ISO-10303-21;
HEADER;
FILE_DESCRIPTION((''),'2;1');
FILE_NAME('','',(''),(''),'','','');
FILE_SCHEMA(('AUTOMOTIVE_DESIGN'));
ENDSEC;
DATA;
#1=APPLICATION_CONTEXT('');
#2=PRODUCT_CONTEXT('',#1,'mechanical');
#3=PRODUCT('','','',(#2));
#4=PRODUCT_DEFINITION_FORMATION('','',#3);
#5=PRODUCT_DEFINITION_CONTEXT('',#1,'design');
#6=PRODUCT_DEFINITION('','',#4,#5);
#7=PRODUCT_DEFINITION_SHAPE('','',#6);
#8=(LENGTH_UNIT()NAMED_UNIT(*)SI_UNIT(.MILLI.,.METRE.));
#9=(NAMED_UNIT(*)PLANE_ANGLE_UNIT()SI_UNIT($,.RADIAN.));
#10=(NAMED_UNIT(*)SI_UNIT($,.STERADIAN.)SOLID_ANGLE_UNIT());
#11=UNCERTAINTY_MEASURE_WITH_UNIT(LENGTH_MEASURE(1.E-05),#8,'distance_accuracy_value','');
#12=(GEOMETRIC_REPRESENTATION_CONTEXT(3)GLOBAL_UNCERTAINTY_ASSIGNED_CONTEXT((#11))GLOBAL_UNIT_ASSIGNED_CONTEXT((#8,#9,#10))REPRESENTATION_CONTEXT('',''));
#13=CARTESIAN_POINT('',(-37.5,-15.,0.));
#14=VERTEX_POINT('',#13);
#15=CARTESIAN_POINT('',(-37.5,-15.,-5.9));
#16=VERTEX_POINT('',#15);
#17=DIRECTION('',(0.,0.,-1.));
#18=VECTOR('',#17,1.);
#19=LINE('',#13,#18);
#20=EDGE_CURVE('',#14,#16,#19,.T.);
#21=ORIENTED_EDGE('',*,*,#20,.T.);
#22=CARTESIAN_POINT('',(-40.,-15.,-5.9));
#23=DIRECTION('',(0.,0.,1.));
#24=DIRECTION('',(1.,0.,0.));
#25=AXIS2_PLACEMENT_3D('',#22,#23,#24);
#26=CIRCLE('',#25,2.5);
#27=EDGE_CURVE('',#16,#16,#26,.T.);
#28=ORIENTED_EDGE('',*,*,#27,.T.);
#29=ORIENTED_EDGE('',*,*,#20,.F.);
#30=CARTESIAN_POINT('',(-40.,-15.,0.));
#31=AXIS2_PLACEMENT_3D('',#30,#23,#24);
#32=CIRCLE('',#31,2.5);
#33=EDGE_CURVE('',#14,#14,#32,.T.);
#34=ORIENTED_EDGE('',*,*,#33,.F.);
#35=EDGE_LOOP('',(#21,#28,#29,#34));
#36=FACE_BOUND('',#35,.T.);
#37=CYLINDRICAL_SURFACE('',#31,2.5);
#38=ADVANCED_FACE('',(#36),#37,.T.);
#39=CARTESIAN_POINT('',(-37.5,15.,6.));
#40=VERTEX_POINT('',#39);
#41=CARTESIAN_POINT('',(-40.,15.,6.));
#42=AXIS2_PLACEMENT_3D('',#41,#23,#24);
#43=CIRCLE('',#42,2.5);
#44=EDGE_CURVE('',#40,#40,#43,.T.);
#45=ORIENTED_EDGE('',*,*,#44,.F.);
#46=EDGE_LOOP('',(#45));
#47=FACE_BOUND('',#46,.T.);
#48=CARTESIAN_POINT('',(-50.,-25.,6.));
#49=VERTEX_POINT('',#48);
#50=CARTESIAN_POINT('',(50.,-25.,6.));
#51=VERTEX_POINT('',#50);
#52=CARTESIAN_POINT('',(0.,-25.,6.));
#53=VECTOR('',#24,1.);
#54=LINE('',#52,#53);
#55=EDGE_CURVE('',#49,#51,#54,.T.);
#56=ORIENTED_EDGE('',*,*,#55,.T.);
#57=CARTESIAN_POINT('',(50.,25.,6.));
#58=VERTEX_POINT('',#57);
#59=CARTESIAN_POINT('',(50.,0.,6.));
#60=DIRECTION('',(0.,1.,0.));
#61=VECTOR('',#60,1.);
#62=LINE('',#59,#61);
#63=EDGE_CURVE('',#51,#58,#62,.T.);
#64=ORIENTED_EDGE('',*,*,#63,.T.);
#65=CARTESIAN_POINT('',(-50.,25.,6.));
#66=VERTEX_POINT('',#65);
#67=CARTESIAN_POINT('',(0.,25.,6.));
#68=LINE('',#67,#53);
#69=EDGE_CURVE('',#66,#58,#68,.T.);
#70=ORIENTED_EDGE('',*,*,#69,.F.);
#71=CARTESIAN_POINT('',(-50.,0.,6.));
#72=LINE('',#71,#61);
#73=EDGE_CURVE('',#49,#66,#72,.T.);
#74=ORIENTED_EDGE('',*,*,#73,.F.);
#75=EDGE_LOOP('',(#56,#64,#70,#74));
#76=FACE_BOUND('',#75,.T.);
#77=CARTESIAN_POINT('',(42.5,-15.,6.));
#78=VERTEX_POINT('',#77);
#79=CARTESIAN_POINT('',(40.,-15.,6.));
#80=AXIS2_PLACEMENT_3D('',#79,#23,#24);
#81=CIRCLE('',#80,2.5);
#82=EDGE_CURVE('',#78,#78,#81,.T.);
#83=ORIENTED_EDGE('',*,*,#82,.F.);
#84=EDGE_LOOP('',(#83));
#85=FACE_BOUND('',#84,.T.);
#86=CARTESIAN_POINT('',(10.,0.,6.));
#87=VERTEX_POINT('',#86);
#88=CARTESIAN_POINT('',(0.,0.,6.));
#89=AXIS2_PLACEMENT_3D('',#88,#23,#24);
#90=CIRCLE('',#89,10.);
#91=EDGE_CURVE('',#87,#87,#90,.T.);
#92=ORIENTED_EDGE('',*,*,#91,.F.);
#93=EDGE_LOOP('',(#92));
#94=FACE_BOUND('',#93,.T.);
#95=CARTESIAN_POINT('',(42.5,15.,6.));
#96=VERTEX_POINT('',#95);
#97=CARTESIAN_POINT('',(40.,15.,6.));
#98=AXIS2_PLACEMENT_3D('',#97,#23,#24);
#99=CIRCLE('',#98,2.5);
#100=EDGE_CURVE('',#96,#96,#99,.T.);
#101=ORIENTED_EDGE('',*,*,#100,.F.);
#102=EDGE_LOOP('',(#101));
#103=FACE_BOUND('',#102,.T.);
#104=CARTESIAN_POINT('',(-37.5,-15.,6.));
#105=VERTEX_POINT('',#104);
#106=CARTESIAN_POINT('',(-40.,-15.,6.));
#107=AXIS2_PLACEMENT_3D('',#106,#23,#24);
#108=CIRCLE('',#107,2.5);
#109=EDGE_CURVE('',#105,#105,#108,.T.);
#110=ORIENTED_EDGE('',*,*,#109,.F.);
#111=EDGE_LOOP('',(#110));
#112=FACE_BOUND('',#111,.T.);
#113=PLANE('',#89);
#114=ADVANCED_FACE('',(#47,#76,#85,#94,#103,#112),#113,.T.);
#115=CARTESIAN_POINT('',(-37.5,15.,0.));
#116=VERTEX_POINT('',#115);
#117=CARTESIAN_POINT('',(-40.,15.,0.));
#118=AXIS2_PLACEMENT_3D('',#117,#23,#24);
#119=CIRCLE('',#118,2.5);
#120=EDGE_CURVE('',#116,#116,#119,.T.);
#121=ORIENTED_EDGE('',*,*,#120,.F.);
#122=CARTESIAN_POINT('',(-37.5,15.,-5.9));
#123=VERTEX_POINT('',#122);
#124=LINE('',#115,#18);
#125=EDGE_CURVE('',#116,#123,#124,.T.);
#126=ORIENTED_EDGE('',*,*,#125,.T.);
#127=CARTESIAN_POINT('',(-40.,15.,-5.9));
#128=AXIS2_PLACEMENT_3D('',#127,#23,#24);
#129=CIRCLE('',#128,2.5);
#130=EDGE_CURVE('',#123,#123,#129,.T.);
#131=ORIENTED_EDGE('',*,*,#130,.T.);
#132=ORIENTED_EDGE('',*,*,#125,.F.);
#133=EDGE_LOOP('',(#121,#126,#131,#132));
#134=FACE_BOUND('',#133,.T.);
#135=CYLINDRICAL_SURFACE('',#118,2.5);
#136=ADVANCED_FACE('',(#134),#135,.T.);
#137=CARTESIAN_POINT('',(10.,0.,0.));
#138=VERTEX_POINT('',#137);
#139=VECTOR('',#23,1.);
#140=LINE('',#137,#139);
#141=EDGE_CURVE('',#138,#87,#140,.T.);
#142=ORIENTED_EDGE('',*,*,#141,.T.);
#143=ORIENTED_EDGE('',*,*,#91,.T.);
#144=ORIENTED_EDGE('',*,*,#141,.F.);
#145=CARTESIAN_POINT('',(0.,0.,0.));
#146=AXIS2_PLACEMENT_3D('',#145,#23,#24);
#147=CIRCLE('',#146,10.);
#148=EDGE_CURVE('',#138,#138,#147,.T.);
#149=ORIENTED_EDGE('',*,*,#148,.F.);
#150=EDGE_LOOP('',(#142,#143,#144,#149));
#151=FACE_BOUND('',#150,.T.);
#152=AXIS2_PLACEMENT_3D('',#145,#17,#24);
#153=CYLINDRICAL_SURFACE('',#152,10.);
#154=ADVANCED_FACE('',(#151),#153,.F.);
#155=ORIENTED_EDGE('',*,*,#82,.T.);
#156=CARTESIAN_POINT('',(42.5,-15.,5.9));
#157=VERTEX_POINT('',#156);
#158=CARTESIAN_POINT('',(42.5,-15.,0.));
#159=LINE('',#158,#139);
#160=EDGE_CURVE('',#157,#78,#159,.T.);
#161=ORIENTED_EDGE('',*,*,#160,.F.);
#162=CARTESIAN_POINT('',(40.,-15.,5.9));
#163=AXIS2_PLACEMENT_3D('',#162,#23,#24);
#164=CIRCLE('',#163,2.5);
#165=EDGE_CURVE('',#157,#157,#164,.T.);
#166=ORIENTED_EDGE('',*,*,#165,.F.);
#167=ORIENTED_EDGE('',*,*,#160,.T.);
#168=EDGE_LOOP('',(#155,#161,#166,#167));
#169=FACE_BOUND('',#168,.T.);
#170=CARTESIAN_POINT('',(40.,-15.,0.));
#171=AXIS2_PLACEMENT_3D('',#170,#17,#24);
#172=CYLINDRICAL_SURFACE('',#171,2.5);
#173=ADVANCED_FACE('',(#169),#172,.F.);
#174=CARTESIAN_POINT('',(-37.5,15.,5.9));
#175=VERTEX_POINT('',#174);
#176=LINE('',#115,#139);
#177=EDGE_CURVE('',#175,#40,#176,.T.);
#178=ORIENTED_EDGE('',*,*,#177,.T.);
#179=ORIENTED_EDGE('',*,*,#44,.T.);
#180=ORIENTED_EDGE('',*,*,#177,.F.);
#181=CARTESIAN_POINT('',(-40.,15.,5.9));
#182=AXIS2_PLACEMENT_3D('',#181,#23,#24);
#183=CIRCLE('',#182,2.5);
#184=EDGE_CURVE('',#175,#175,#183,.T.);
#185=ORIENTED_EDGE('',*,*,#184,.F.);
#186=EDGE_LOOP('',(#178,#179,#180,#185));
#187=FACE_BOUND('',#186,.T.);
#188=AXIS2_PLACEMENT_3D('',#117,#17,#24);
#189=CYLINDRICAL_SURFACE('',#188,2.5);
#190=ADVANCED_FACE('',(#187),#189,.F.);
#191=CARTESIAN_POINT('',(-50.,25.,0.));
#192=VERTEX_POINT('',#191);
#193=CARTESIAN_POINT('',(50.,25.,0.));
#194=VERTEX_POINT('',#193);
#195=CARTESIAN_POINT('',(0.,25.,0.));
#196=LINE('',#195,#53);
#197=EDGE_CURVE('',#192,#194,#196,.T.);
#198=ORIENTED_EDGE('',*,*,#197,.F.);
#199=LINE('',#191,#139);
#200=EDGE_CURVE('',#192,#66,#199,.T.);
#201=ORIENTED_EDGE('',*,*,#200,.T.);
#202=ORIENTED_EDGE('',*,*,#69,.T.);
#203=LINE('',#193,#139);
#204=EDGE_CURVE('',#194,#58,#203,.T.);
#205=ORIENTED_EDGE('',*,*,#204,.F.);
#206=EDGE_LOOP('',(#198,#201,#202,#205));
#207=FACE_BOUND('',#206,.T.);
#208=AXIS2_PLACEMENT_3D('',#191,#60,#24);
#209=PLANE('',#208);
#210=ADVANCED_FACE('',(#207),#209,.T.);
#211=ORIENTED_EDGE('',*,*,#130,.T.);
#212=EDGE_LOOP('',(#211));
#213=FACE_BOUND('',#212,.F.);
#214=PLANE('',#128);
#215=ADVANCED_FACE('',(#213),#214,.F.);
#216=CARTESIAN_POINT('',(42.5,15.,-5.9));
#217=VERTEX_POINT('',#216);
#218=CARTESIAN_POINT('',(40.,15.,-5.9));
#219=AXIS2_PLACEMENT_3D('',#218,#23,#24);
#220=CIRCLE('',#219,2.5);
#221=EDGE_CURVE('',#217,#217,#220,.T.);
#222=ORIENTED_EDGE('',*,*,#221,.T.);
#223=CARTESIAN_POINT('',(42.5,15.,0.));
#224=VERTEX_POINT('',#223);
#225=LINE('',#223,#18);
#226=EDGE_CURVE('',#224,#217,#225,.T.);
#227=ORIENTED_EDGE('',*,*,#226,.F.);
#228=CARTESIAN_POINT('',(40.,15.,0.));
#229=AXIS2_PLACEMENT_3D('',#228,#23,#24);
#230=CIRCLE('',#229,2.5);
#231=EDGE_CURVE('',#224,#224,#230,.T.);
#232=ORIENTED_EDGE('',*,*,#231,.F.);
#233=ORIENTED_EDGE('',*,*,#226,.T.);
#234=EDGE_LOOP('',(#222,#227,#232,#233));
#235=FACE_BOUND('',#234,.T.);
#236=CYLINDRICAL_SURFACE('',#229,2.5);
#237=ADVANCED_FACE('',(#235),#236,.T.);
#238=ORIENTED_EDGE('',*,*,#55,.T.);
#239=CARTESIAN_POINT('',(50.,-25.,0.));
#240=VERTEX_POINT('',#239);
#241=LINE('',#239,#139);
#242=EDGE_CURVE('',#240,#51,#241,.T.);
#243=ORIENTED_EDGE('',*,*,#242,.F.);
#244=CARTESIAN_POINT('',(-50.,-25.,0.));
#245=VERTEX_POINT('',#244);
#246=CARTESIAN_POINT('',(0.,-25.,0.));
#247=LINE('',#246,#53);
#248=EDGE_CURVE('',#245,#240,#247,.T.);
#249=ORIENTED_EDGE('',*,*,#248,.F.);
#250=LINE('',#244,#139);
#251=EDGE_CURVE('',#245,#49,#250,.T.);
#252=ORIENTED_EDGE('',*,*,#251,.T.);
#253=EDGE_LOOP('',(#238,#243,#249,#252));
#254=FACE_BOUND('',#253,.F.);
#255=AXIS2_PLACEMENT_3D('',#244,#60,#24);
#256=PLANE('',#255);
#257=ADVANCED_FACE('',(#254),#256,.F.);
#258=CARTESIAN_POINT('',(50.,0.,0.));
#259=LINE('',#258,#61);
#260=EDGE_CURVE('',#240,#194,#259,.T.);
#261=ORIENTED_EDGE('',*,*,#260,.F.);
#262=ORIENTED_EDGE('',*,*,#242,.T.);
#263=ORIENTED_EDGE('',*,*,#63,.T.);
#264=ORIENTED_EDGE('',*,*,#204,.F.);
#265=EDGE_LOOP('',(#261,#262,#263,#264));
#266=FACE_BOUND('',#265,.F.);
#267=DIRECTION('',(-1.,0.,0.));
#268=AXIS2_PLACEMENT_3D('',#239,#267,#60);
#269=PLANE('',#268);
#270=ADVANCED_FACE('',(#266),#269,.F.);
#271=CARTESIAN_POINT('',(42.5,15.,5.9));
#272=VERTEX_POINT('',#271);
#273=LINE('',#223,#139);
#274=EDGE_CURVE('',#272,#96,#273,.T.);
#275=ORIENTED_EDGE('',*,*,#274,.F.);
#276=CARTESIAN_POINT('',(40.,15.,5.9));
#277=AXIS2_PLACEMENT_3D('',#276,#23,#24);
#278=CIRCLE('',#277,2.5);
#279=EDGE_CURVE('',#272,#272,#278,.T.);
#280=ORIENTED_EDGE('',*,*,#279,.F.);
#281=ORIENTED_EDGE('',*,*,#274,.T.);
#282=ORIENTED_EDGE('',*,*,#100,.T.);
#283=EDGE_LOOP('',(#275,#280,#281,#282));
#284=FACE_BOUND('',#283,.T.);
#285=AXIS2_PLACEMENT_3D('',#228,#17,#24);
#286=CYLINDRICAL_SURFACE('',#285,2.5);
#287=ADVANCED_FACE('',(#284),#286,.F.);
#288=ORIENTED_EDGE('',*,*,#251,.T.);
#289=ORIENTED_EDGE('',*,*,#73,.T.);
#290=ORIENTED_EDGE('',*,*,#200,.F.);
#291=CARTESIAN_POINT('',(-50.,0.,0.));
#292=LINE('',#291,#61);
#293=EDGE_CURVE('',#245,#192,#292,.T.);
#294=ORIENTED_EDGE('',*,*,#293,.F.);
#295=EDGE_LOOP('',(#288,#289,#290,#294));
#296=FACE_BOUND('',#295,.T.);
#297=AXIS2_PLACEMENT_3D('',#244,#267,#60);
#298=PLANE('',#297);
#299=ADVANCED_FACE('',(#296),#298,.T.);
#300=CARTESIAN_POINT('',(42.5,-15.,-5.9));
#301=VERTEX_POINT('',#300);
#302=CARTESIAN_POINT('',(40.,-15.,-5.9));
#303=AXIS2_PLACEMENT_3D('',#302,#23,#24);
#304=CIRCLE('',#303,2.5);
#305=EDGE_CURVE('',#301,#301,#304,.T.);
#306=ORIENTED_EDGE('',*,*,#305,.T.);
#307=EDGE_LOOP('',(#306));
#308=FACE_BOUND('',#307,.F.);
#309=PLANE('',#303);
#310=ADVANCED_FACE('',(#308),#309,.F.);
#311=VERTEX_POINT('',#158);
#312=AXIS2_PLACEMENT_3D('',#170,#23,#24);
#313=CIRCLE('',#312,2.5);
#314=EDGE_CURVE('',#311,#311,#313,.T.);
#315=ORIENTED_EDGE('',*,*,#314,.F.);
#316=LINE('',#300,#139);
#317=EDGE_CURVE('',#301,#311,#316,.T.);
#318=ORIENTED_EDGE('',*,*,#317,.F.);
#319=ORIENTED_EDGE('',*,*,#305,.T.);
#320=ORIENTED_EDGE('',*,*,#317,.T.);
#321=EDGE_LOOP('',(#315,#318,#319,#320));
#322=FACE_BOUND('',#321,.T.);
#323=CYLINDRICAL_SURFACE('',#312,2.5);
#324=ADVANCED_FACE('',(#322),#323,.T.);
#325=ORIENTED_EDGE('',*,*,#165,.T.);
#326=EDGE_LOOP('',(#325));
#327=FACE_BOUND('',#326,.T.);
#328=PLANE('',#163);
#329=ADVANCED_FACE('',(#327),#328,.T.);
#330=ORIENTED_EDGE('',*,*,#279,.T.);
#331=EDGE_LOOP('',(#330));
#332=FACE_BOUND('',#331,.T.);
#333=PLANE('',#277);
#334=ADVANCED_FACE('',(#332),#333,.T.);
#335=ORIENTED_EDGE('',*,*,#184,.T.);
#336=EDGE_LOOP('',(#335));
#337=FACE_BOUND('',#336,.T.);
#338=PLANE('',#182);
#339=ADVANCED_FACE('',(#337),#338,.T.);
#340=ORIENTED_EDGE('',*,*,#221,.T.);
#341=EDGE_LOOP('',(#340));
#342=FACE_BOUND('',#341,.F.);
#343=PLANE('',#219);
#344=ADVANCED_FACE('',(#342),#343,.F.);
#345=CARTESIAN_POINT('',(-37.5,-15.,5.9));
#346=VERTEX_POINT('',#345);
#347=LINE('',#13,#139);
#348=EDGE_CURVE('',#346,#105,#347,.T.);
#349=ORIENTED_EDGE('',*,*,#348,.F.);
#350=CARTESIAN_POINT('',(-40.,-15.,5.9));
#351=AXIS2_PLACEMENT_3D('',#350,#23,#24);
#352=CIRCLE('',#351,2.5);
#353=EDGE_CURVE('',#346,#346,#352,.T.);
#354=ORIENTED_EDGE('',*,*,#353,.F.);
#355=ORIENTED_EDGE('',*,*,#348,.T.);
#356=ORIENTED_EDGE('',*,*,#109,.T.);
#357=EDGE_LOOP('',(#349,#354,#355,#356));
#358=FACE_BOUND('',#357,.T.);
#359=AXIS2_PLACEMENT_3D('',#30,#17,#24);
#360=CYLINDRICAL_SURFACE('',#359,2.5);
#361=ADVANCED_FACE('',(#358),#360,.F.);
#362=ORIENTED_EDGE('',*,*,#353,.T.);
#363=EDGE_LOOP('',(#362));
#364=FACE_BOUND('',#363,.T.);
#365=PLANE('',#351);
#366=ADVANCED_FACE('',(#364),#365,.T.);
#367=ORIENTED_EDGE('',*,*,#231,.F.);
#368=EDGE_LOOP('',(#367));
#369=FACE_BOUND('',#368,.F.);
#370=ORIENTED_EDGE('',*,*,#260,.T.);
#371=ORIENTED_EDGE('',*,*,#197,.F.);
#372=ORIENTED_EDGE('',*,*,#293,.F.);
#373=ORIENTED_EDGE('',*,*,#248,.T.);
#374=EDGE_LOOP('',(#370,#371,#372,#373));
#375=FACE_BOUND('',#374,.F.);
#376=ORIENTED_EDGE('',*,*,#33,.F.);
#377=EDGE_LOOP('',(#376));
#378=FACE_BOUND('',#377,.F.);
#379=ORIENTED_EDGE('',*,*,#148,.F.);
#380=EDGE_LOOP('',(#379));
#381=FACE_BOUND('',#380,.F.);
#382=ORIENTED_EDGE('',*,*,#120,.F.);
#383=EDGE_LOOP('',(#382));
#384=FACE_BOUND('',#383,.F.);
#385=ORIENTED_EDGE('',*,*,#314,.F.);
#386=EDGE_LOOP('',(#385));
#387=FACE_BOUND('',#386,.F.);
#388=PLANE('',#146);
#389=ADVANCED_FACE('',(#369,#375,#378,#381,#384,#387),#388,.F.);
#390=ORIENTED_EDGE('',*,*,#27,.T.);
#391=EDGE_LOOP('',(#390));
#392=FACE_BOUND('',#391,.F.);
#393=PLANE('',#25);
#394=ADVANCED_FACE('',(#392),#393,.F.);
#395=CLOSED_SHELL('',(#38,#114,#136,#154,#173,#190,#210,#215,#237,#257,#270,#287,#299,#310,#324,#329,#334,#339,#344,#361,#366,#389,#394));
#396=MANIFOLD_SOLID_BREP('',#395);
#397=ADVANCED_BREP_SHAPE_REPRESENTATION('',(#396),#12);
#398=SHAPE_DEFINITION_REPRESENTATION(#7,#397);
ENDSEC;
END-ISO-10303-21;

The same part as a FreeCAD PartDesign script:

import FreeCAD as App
import Part
import Sketcher

V = App.Vector


def add_polygon(sketch, points):
    """Adds a closed chain of lines whose ends are joined by coincident constraints."""
    first, n = sketch.GeometryCount, len(points)
    for a, b in zip(points, points[1:] + points[:1]):
        sketch.addGeometry(Part.LineSegment(App.Vector(*a, 0), App.Vector(*b, 0)), False)
    for i in range(n):
        sketch.addConstraint(Sketcher.Constraint("Coincident", first + i, 2, first + (i + 1) % n, 1))

doc = App.newDocument("Part")
body = doc.addObject("PartDesign::Body", "Body")

# Sketch on XY plane
sketch1 = body.newObject("Sketcher::SketchObject", "Sketch")
sketch1.AttachmentSupport = (doc.getObject("XY_Plane"), [""])
sketch1.MapMode = "FlatFace"
add_polygon(sketch1, [(-50, 25), (-50, -25), (50, -25), (50, 25)])  # lines 0-3
sketch1.addGeometry(Part.Circle(V(-40, -15, 0), V(0, 0, 1), 2.5), False)  # 4
sketch1.addGeometry(Part.Circle(V(40, -15, 0), V(0, 0, 1), 2.5), False)  # 5
sketch1.addGeometry(Part.Circle(V(-40, 15, 0), V(0, 0, 1), 2.5), False)  # 6
sketch1.addGeometry(Part.Circle(V(0, 0, 0), V(0, 0, 1), 10), False)  # 7
sketch1.addGeometry(Part.Circle(V(40, 15, 0), V(0, 0, 1), 2.5), False)  # 8
sketch1.addConstraint([
    Sketcher.Constraint("Vertical", 0),
    Sketcher.Constraint("Horizontal", 1),
    Sketcher.Constraint("Vertical", 2),
    Sketcher.Constraint("Horizontal", 3),
    Sketcher.Constraint("Coincident", 7, 3, -1, 1),
    Sketcher.Constraint("Equal", 4, 5),
    Sketcher.Constraint("Equal", 5, 6),
    Sketcher.Constraint("Equal", 6, 8),
    Sketcher.Constraint("Symmetric", 5, 3, 6, 3, -1, 1),
    Sketcher.Constraint("Symmetric", 4, 3, 8, 3, -1, 1),
    Sketcher.Constraint("Symmetric", 0, 2, 2, 2, -1, 1),
    Sketcher.Constraint("Symmetric", 4, 3, 5, 3, -2),
    Sketcher.Constraint("Diameter", 4, 5.0),
    Sketcher.Constraint("Diameter", 7, 20.0),
    Sketcher.Constraint("DistanceX", 1, 1, 1, 2, 100.0),
    Sketcher.Constraint("DistanceY", 0, 2, 0, 1, 50.0),
    Sketcher.Constraint("DistanceX", 4, 3, -1, 1, 40.0),
    Sketcher.Constraint("DistanceY", 4, 3, -1, 1, 15.0),
])
pad1 = body.newObject("PartDesign::Pad", "Pad")
pad1.Profile = sketch1
pad1.Length = 6

# Sketch on XY plane
sketch2 = body.newObject("Sketcher::SketchObject", "Sketch001")
sketch2.AttachmentSupport = (doc.getObject("XY_Plane"), [""])
sketch2.MapMode = "FlatFace"
sketch2.addGeometry([
    Part.Circle(V(-40, -15, 0), V(0, 0, 1), 2.5),
    Part.Circle(V(40, 15, 0), V(0, 0, 1), 2.5),
    Part.Circle(V(-40, 15, 0), V(0, 0, 1), 2.5),
    Part.Circle(V(40, -15, 0), V(0, 0, 1), 2.5),
], False)
sketch2.addConstraint([
    Sketcher.Constraint("Equal", 0, 1),
    Sketcher.Constraint("Equal", 1, 2),
    Sketcher.Constraint("Equal", 2, 3),
    Sketcher.Constraint("Symmetric", 0, 3, 1, 3, -1, 1),
    Sketcher.Constraint("Symmetric", 2, 3, 3, 3, -1, 1),
    Sketcher.Constraint("Symmetric", 1, 3, 2, 3, -2),
    Sketcher.Constraint("Diameter", 0, 5.0),
    Sketcher.Constraint("DistanceX", 0, 3, -1, 1, 40.0),
    Sketcher.Constraint("DistanceY", 0, 3, -1, 1, 15.0),
])
pad2 = body.newObject("PartDesign::Pad", "Pad001")
pad2.Profile = sketch2
pad2.Length = 11.8
pad2.Midplane = True

doc.recompute()
